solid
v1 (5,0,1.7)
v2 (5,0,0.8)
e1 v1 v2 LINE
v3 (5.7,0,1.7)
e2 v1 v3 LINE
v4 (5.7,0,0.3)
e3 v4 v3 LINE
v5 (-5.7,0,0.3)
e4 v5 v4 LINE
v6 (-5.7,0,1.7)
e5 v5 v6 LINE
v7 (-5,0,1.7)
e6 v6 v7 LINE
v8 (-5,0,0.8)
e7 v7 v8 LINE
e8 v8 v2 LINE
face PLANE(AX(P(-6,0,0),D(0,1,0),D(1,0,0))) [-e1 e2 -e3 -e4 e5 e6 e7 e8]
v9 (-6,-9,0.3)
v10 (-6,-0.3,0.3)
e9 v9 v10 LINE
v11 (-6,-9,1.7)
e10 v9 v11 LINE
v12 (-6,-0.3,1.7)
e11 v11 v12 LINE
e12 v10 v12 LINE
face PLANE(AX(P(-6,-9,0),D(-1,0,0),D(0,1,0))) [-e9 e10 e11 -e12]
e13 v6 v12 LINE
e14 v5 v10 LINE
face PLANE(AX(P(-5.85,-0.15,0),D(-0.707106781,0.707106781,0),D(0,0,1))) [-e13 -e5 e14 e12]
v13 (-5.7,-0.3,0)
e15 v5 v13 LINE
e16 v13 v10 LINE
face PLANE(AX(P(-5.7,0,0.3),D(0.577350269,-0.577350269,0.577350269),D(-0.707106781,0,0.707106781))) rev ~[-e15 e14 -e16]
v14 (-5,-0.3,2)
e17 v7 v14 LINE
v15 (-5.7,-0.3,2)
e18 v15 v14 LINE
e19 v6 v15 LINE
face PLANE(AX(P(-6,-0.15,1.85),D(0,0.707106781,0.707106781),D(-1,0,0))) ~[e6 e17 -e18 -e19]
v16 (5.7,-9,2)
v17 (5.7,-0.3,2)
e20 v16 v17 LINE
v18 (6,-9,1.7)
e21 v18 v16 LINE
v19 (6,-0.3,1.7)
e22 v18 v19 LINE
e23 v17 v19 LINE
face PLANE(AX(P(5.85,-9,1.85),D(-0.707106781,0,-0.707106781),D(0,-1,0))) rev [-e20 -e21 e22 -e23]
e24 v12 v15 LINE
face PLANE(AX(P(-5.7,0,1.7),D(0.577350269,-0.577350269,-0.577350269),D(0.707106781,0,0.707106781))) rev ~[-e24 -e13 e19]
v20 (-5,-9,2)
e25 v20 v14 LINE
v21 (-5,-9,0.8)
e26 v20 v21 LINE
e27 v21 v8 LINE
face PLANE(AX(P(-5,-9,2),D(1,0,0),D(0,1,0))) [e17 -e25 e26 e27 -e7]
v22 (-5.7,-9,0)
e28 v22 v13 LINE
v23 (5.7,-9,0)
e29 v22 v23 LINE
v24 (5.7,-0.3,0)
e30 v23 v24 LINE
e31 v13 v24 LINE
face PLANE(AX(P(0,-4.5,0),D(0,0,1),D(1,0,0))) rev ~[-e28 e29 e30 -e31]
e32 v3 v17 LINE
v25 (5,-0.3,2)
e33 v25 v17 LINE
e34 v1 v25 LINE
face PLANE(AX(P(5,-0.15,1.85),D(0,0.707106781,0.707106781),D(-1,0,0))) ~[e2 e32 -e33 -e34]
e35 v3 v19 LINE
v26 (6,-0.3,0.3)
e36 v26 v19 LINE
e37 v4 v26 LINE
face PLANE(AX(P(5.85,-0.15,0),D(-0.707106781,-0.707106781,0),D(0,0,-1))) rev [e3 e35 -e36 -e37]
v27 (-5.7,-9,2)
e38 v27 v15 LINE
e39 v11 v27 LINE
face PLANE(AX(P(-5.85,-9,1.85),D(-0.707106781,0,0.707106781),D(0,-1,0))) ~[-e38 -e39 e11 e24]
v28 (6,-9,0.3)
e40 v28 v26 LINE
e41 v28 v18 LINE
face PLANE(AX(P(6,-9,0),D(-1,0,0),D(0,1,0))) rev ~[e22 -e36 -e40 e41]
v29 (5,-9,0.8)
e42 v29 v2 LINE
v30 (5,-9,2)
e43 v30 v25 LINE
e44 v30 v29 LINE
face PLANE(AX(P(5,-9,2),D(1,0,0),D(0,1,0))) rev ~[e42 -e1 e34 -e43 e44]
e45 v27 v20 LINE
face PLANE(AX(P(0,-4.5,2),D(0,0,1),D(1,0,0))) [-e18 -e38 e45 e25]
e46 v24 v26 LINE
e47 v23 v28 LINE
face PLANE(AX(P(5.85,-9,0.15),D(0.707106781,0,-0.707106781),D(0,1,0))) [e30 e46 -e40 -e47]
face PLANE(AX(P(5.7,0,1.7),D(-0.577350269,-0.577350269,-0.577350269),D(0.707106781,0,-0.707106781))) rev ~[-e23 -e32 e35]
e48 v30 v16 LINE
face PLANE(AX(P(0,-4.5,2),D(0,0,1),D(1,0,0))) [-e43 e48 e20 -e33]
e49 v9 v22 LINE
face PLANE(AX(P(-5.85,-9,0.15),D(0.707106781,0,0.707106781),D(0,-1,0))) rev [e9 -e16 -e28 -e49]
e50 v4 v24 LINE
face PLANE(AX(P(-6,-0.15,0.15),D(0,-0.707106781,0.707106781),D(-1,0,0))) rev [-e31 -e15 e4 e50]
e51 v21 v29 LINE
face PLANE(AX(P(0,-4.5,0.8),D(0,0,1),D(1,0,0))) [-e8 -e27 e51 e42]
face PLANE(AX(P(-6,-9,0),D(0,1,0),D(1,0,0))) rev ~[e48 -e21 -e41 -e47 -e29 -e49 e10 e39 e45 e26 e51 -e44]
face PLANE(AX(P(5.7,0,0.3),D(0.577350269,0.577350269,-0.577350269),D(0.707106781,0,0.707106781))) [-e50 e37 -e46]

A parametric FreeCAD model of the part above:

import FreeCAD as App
import Part
import Sketcher
from FreeCAD import Vector


def edges_at(feature, points):
    """Names of the edges that pass closest to the given points."""
    edges = feature.Shape.Edges
    near = lambda p: min(range(len(edges)), key=lambda i: edges[i].distToShape(Part.Vertex(*p))[0])
    return sorted({f"Edge{near(p) + 1}" for p in points})


def add_polygon(sketch, points):
    """Adds a closed chain of lines whose ends are joined by coincident constraints."""
    first, n = sketch.GeometryCount, len(points)
    for a, b in zip(points, points[1:] + points[:1]):
        sketch.addGeometry(Part.LineSegment(App.Vector(*a, 0), App.Vector(*b, 0)), False)
    for i in range(n):
        sketch.addConstraint(Sketcher.Constraint("Coincident", first + i, 2, first + (i + 1) % n, 1))

doc = App.newDocument("Part")
body = doc.addObject("PartDesign::Body", "Body")

sketch1 = body.newObject("Sketcher::SketchObject", "Sketch")
sketch1.AttachmentSupport = (doc.getObject("XY_Plane"), [""])
sketch1.MapMode = "FlatFace"
add_polygon(sketch1, [(-6, 0), (-6, -9), (6, -9), (6, 0)])
sketch1.addConstraint([
    Sketcher.Constraint("Vertical", 0),
    Sketcher.Constraint("Horizontal", 1),
    Sketcher.Constraint("Vertical", 2),
    Sketcher.Constraint("Horizontal", 3),
    Sketcher.Constraint("Symmetric", 2, 2, 3, 2, -1, 1),
    Sketcher.Constraint("DistanceX", 1, 1, 1, 2, 12.0),
    Sketcher.Constraint("DistanceY", 0, 2, 0, 1, 9.0),
])
pad1 = body.newObject("PartDesign::Pad", "Pad")
pad1.Profile = sketch1
pad1.Length = 2

sketch2 = body.newObject("Sketcher::SketchObject", "Sketch001")
sketch2.AttachmentSupport = (doc.getObject("XY_Plane"), [""])
sketch2.MapMode = "FlatFace"
sketch2.AttachmentOffset = App.Placement(Vector(0, 0, 2), App.Rotation())
add_polygon(sketch2, [(-5, 0), (-5, -9), (5, -9), (5, 0)])
sketch2.addConstraint([
    Sketcher.Constraint("Vertical", 0),
    Sketcher.Constraint("Horizontal", 1),
    Sketcher.Constraint("Vertical", 2),
    Sketcher.Constraint("Horizontal", 3),
    Sketcher.Constraint("Symmetric", 2, 2, 3, 2, -1, 1),
    Sketcher.Constraint("DistanceX", 1, 1, 1, 2, 10.0),
    Sketcher.Constraint("DistanceY", 0, 2, 0, 1, 9.0),
])
pocket1 = body.newObject("PartDesign::Pocket", "Pocket")
pocket1.Profile = sketch2
pocket1.Length = 1.2
doc.recompute()

chamfer = body.newObject("PartDesign::Chamfer", "Chamfer")
chamfer.Base = (pocket1, edges_at(pocket1, [
    (-6, -4.5, 2),
    (6, -4.5, 2),
    (6, -4.5, 0),
    (-6, -4.5, 0),
    (0, 0, 0),
    (-6, 0, 1),
    (-5.5, 0, 2),
    (5.5, 0, 2),
    (6, 0, 1),
]))
chamfer.Size = 0.3

doc.recompute()
